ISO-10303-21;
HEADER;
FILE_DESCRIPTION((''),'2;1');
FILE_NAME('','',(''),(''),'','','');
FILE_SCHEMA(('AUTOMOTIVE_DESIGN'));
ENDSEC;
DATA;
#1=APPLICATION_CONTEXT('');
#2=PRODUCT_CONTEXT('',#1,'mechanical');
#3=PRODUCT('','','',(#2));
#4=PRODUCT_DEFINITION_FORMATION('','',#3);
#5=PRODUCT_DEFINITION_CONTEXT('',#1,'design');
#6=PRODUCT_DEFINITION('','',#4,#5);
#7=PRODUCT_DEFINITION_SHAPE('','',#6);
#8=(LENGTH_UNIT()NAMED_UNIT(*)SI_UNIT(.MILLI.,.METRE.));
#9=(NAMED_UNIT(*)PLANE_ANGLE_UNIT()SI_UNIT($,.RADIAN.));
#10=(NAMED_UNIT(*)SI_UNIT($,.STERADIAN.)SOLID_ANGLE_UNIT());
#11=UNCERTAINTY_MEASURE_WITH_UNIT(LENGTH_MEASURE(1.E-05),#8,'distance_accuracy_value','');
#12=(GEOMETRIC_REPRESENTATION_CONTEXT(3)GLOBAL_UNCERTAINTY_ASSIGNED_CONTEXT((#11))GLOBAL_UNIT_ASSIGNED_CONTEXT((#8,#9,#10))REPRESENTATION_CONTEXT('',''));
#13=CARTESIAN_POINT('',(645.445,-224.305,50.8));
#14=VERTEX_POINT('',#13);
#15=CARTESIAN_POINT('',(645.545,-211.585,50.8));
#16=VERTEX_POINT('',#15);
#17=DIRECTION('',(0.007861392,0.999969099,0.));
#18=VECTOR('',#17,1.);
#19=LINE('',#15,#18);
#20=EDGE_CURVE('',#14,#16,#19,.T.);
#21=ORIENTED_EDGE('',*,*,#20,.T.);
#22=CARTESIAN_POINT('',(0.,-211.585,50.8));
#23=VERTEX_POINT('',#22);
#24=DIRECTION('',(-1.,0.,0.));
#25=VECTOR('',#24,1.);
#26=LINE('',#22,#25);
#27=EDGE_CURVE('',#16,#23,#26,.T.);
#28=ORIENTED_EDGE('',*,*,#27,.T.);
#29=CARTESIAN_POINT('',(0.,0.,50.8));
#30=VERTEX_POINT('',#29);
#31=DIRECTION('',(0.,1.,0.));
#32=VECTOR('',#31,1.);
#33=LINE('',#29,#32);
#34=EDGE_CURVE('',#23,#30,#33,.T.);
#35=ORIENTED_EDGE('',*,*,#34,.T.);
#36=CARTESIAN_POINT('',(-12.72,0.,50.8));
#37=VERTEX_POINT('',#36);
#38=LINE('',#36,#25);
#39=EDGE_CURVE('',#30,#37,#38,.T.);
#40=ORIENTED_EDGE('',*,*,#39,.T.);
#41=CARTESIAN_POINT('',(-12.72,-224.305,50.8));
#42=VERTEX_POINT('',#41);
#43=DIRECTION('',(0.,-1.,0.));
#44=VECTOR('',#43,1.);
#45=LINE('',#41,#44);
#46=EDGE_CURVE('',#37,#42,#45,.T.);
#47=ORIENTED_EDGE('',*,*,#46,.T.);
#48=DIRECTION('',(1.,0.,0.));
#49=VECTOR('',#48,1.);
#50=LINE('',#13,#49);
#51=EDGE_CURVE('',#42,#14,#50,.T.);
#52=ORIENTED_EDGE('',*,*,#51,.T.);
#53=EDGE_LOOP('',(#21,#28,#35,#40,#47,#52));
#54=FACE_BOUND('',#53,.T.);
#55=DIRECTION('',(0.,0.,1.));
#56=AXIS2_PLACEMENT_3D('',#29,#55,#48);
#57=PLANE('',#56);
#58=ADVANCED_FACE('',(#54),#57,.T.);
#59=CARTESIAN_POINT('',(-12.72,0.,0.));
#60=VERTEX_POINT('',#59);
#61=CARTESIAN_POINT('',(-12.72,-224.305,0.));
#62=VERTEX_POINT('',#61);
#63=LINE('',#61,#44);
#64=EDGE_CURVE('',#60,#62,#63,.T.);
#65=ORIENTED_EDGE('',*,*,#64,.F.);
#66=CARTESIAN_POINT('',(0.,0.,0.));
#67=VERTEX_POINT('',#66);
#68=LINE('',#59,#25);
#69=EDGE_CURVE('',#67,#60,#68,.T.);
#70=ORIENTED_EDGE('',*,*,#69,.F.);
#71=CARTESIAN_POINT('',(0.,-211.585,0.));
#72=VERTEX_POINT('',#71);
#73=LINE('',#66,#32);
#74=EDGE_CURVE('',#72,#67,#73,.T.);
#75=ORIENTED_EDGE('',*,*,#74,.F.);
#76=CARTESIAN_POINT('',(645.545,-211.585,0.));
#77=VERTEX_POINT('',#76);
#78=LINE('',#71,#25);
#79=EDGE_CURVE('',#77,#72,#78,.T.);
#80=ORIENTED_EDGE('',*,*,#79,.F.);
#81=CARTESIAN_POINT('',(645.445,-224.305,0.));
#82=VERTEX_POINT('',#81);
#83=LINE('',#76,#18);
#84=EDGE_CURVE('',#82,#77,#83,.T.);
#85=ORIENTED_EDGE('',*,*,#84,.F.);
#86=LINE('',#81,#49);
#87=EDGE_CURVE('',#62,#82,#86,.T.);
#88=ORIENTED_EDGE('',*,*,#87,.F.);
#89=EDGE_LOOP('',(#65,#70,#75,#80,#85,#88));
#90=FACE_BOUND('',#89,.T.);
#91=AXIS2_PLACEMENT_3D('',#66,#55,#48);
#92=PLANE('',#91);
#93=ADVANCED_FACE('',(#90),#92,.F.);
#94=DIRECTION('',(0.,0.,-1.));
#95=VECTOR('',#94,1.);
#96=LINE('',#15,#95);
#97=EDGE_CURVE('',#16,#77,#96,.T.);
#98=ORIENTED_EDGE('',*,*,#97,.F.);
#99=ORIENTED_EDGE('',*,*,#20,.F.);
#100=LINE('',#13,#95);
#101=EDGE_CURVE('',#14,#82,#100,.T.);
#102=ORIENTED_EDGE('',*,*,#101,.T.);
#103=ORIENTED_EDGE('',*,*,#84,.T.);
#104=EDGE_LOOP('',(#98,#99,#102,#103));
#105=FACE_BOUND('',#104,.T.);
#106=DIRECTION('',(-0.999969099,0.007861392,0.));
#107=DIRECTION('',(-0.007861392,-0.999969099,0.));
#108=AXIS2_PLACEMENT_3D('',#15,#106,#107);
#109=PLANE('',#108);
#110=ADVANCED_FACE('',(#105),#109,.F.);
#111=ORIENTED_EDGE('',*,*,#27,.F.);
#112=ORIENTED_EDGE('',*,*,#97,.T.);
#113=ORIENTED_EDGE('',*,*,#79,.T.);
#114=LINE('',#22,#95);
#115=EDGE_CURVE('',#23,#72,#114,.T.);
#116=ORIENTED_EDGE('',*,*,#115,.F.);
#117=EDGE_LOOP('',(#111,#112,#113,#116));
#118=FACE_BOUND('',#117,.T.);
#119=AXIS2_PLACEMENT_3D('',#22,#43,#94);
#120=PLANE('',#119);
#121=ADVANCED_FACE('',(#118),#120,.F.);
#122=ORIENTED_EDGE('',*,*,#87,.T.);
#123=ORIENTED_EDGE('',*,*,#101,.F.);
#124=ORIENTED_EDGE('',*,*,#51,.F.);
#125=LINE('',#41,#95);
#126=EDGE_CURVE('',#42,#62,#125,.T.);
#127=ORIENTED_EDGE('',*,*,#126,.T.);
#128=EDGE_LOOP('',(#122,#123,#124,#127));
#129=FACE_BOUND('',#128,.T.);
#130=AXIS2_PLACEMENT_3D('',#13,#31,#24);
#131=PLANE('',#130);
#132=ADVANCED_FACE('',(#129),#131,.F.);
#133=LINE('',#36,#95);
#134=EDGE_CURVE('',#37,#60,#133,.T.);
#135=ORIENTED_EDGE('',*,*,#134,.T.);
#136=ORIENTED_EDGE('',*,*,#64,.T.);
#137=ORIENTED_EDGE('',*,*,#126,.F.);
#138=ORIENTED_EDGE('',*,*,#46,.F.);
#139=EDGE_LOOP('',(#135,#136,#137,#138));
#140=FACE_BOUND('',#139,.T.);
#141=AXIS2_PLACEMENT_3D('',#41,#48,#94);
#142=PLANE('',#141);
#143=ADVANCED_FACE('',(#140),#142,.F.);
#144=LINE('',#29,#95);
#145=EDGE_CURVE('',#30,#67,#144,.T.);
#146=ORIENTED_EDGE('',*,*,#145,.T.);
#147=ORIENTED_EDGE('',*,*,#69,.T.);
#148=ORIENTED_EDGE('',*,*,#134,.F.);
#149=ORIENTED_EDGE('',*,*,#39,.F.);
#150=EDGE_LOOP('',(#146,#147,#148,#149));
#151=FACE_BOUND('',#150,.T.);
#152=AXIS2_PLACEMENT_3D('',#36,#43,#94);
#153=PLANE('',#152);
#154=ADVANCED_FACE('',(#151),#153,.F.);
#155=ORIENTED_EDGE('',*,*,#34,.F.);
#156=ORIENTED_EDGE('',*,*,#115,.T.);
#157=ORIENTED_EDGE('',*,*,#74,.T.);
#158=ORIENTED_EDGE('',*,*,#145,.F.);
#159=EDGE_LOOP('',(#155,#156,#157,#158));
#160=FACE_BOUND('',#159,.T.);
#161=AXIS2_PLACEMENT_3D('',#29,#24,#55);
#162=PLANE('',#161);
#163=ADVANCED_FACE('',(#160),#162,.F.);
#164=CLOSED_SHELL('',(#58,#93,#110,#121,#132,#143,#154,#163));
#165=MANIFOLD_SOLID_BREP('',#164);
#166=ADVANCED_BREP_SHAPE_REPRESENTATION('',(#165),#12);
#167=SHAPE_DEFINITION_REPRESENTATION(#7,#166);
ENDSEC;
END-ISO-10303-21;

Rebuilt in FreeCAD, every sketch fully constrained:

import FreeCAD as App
import Part
import Sketcher

doc = App.newDocument("Part")
params = doc.addObject("Spreadsheet::Sheet", "Params")
for row, (alias, value) in enumerate([
    ("pad1_length", "2 in"),
], start=1):
    params.set(f"A{row}", alias)
    params.set(f"B{row}", "=" + value)
    params.setAlias(f"B{row}", alias)

body = doc.addObject("PartDesign::Body", "Body")

# Sketch on XY plane
sketch1 = body.newObject("Sketcher::SketchObject", "Sketch")
sketch1.AttachmentSupport = (doc.getObject("XY_Plane"), [""])
sketch1.MapMode = "FlatFace"
sketch1.addGeometry([
    Part.LineSegment(App.Vector(645, -224, 0), App.Vector(646, -212, 0)),  # 0
    Part.LineSegment(App.Vector(646, -212, 0), App.Vector(0, -212, 0)),  # 1
    Part.LineSegment(App.Vector(0, -212, 0), App.Vector(0, 0, 0)),  # 2
    Part.LineSegment(App.Vector(0, 0, 0), App.Vector(-13, 0, 0)),  # 3
    Part.LineSegment(App.Vector(-13, 0, 0), App.Vector(-13, -224, 0)),  # 4
    Part.LineSegment(App.Vector(-13, -224, 0), App.Vector(645, -224, 0)),  # 5
], False)
sketch1.addConstraint([
    Sketcher.Constraint("Coincident", 0, 2, 1, 1),
    Sketcher.Constraint("Coincident", 1, 2, 2, 1),
    Sketcher.Constraint("Coincident", 2, 2, 3, 1),
    Sketcher.Constraint("Coincident", 3, 2, 4, 1),
    Sketcher.Constraint("Coincident", 4, 2, 5, 1),
    Sketcher.Constraint("Coincident", 5, 2, 0, 1),
    Sketcher.Constraint("Horizontal", 1),
    Sketcher.Constraint("Vertical", 2),
    Sketcher.Constraint("Horizontal", 3),
    Sketcher.Constraint("Vertical", 4),
    Sketcher.Constraint("Horizontal", 5),
    Sketcher.Constraint("Coincident", 2, 2, -1, 1),
    Sketcher.Constraint("DistanceX", 1, 2, 1, 1, 645.545),
    Sketcher.Constraint("DistanceX", 3, 2, 3, 1, 12.72),
    Sketcher.Constraint("DistanceX", 5, 1, 5, 2, 658.165),
    Sketcher.Constraint("DistanceY", 2, 1, 2, 2, 211.585),
    Sketcher.Constraint("DistanceY", 4, 2, 4, 1, 224.305),
])
pad1 = body.newObject("PartDesign::Pad", "Pad")
pad1.Profile = sketch1
pad1.setExpression("Length", "Params.pad1_length")

doc.recompute()
